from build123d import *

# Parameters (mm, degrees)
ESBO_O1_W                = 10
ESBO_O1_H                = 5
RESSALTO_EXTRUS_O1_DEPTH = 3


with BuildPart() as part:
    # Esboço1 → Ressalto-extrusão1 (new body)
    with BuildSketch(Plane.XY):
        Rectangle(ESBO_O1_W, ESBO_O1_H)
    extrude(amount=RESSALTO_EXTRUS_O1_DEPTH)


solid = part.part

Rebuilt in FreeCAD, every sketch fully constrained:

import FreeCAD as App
import Part
import Sketcher
from FreeCAD import Vector


def add_polygon(sketch, points):
    """Adds a closed chain of lines whose ends are joined by coincident constraints."""
    first, n = sketch.GeometryCount, len(points)
    for a, b in zip(points, points[1:] + points[:1]):
        sketch.addGeometry(Part.LineSegment(App.Vector(*a, 0), App.Vector(*b, 0)), False)
    for i in range(n):
        sketch.addConstraint(Sketcher.Constraint("Coincident", first + i, 2, first + (i + 1) % n, 1))

doc = App.newDocument("Part")
body = doc.addObject("PartDesign::Body", "Body")

# Sketch on XY plane
sketch1 = doc.addObject("Sketcher::SketchObject", "Sketch")
body.addObject(sketch1)
sketch1.AttachmentSupport = (doc.XY_Plane, [""])
sketch1.MapMode = "FlatFace"
add_polygon(sketch1, [(-5, 2), (-5, -2), (5, -2), (5, 2)])  # lines 0-3
sketch1.addConstraint(Sketcher.Constraint("Vertical", 0))
sketch1.addConstraint(Sketcher.Constraint("Horizontal", 1))
sketch1.addConstraint(Sketcher.Constraint("Vertical", 2))
sketch1.addConstraint(Sketcher.Constraint("Horizontal", 3))
sketch1.addConstraint(Sketcher.Constraint("Symmetric", 0, 2, 2, 2, -1, 1))
sketch1.addConstraint(Sketcher.Constraint("DistanceX", 1, 1, 1, 2, 10.0))
sketch1.addConstraint(Sketcher.Constraint("DistanceY", 0, 2, 0, 1, 5.0))
pad1 = doc.addObject("PartDesign::Pad", "Pad")
body.addObject(pad1)
pad1.Profile = sketch1
pad1.Length = 3

doc.recompute()
